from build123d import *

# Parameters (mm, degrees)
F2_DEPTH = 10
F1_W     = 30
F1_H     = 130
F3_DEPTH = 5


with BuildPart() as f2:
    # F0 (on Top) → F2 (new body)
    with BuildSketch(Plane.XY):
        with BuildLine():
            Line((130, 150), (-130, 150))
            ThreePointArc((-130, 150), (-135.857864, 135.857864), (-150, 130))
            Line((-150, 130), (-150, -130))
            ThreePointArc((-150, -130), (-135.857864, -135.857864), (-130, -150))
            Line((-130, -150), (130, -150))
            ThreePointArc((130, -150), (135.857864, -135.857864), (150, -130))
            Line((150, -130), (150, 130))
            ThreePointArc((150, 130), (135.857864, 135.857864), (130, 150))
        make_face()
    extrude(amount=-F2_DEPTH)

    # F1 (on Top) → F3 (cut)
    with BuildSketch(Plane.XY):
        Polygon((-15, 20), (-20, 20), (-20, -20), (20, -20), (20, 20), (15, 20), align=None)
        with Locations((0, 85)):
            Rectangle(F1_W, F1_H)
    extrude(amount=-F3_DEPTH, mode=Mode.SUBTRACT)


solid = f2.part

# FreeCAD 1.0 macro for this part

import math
import FreeCAD as App
import Part
import Sketcher
Q = App.Units.Quantity

doc = App.newDocument("Part")
params = doc.addObject("Spreadsheet::Sheet", "Params")
for row, (alias, value) in enumerate([
    ("sketch1_radius", "19.999999 mm"),
    ("sketch1_width", "260 mm"),
    ("pad1_length", "10 mm"),
    ("sketch2_width", "40 mm"),
    ("sketch2_width2", "5 mm"),
    ("sketch2_height", "130 mm"),
    ("pocket1_length", "5 mm"),
], start=1):
    params.set(f"A{row}", alias)
    params.set(f"B{row}", "=" + value)
    params.setAlias(f"B{row}", alias)

body = doc.addObject("PartDesign::Body", "Body")

# Sketch on XY plane
sketch1 = body.newObject("Sketcher::SketchObject", "Sketch")
sketch1.AttachmentSupport = (doc.getObject("XY_Plane"), [""])
sketch1.MapMode = "FlatFace"
sketch1.addGeometry([
    Part.LineSegment(App.Vector(130, 150, 0), App.Vector(-130, 150, 0)),  # 0
    Part.ArcOfCircle(Part.Circle(App.Vector(-150, 150, 0), App.Vector(0, 0, 1), 20), math.radians(-90), math.radians(0)),  # 1
    Part.LineSegment(App.Vector(-150, 130, 0), App.Vector(-150, -130, 0)),  # 2
    Part.ArcOfCircle(Part.Circle(App.Vector(-150, -150, 0), App.Vector(0, 0, 1), 20), math.radians(0), math.radians(90)),  # 3
    Part.LineSegment(App.Vector(-130, -150, 0), App.Vector(130, -150, 0)),  # 4
    Part.ArcOfCircle(Part.Circle(App.Vector(150, -150, 0), App.Vector(0, 0, 1), 20), math.radians(90), math.radians(180)),  # 5
    Part.LineSegment(App.Vector(150, -130, 0), App.Vector(150, 130, 0)),  # 6
    Part.ArcOfCircle(Part.Circle(App.Vector(150, 150, 0), App.Vector(0, 0, 1), 20), math.radians(180), math.radians(270)),  # 7
], False)
sketch1.addConstraint([
    Sketcher.Constraint("Coincident", 0, 2, 1, 2),
    Sketcher.Constraint("Coincident", 1, 1, 2, 1),
    Sketcher.Constraint("Coincident", 2, 2, 3, 2),
    Sketcher.Constraint("Coincident", 3, 1, 4, 1),
    Sketcher.Constraint("Coincident", 4, 2, 5, 2),
    Sketcher.Constraint("Coincident", 5, 1, 6, 1),
    Sketcher.Constraint("Coincident", 6, 2, 7, 2),
    Sketcher.Constraint("Coincident", 7, 1, 0, 1),
    Sketcher.Constraint("Horizontal", 0),
    Sketcher.Constraint("Vertical", 2),
    Sketcher.Constraint("Horizontal", 4),
    Sketcher.Constraint("Vertical", 6),
    Sketcher.Constraint("Equal", 1, 3),
    Sketcher.Constraint("Equal", 3, 5),
    Sketcher.Constraint("Equal", 5, 7),
    Sketcher.Constraint("Symmetric", 1, 3, 5, 3, -1, 1),
    Sketcher.Constraint("Symmetric", 3, 3, 7, 3, -1, 1),
    Sketcher.Constraint("Symmetric", 3, 3, 5, 3, -2),
    Sketcher.Constraint("Horizontal", 7, 3, 0, 2),
    Sketcher.Constraint("Horizontal", 5, 3, 3, 1),
    Sketcher.Constraint("Vertical", 3, 3, 1, 1),
    Sketcher.Constraint("Vertical", 7, 3, 5, 1),
    Sketcher.Constraint("Equal", 4, 2),
    Sketcher.Constraint("Radius", 1, Q("19.999999 mm")),
    Sketcher.Constraint("DistanceX", 0, 2, 0, 1, Q("260 mm")),
])
sketch1.setExpression("Constraints[23]", "Params.sketch1_radius")
sketch1.setExpression("Constraints[24]", "Params.sketch1_width")
pad1 = body.newObject("PartDesign::Pad", "Pad")
pad1.Profile = sketch1
pad1.setExpression("Length", "Params.pad1_length")
pad1.Reversed = True

# Sketch on XY plane
sketch2 = body.newObject("Sketcher::SketchObject", "Sketch001")
sketch2.AttachmentSupport = (doc.getObject("XY_Plane"), [""])
sketch2.MapMode = "FlatFace"
sketch2.addGeometry([
    Part.LineSegment(App.Vector(-20, 20, 0), App.Vector(-20, -20, 0)),  # 0
    Part.LineSegment(App.Vector(-20, -20, 0), App.Vector(20, -20, 0)),  # 1
    Part.LineSegment(App.Vector(20, -20, 0), App.Vector(20, 20, 0)),  # 2
    Part.LineSegment(App.Vector(20, 20, 0), App.Vector(15, 20, 0)),  # 3
    Part.LineSegment(App.Vector(15, 20, 0), App.Vector(15, 150, 0)),  # 4
    Part.LineSegment(App.Vector(15, 150, 0), App.Vector(-15, 150, 0)),  # 5
    Part.LineSegment(App.Vector(-15, 150, 0), App.Vector(-15, 20, 0)),  # 6
    Part.LineSegment(App.Vector(-15, 20, 0), App.Vector(-20, 20, 0)),  # 7
], False)
sketch2.addConstraint([
    Sketcher.Constraint("Coincident", 0, 2, 1, 1),
    Sketcher.Constraint("Coincident", 1, 2, 2, 1),
    Sketcher.Constraint("Coincident", 2, 2, 3, 1),
    Sketcher.Constraint("Coincident", 3, 2, 4, 1),
    Sketcher.Constraint("Coincident", 4, 2, 5, 1),
    Sketcher.Constraint("Coincident", 5, 2, 6, 1),
    Sketcher.Constraint("Coincident", 6, 2, 7, 1),
    Sketcher.Constraint("Coincident", 7, 2, 0, 1),
    Sketcher.Constraint("Vertical", 0),
    Sketcher.Constraint("Horizontal", 1),
    Sketcher.Constraint("Vertical", 2),
    Sketcher.Constraint("Horizontal", 3),
    Sketcher.Constraint("Vertical", 4),
    Sketcher.Constraint("Horizontal", 5),
    Sketcher.Constraint("Vertical", 6),
    Sketcher.Constraint("Horizontal", 7),
    Sketcher.Constraint("Symmetric", 0, 2, 2, 2, -1, 1),
    Sketcher.Constraint("Symmetric", 3, 2, 6, 2, -2),
    Sketcher.Constraint("Equal", 1, 0),
    Sketcher.Constraint("DistanceX", 1, 1, 1, 2, Q("40 mm")),
    Sketcher.Constraint("DistanceX", 3, 2, 3, 1, Q("5 mm")),
    Sketcher.Constraint("DistanceY", 4, 1, 4, 2, Q("130 mm")),
])
sketch2.setExpression("Constraints[19]", "Params.sketch2_width")
sketch2.setExpression("Constraints[20]", "Params.sketch2_width2")
sketch2.setExpression("Constraints[21]", "Params.sketch2_height")
pocket1 = body.newObject("PartDesign::Pocket", "Pocket")
pocket1.Profile = sketch2
pocket1.setExpression("Length", "Params.pocket1_length")

doc.recompute()
